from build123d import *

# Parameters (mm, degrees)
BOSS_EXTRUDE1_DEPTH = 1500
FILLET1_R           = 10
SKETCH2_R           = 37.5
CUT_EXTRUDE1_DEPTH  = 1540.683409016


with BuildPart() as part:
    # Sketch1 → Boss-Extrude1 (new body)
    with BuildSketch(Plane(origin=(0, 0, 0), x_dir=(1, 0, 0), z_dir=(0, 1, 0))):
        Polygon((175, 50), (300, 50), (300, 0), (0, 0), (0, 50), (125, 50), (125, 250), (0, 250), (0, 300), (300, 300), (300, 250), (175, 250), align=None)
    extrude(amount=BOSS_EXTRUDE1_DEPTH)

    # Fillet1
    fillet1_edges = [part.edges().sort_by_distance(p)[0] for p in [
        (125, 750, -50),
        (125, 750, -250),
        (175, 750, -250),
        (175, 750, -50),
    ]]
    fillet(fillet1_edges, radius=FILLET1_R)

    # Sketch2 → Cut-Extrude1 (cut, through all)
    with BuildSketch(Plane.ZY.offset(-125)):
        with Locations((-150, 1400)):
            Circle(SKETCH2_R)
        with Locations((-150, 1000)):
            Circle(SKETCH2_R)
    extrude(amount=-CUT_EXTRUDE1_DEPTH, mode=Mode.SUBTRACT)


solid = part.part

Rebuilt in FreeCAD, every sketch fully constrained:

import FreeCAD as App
import Part
import Sketcher
Q = App.Units.Quantity


def edges_at(feature, points):
    """Names of the edges that pass closest to the given points."""
    edges = feature.Shape.Edges
    near = lambda p: min(range(len(edges)), key=lambda i: edges[i].distToShape(Part.Vertex(*p))[0])
    return sorted({f"Edge{near(p) + 1}" for p in points})


def add_polygon(sketch, points):
    """Adds a closed chain of lines whose ends are joined by coincident constraints."""
    first, n = sketch.GeometryCount, len(points)
    for a, b in zip(points, points[1:] + points[:1]):
        sketch.addGeometry(Part.LineSegment(App.Vector(*a, 0), App.Vector(*b, 0)), False)
    for i in range(n):
        sketch.addConstraint(Sketcher.Constraint("Coincident", first + i, 2, first + (i + 1) % n, 1))

doc = App.newDocument("Part")
body = doc.addObject("PartDesign::Body", "Body")

# Sketch on XZ plane
sketch1 = body.newObject("Sketcher::SketchObject", "Sketch")
sketch1.AttachmentSupport = (doc.getObject("XZ_Plane"), [""])
sketch1.MapMode = "FlatFace"
add_polygon(sketch1, [(300, -50), (175, -50), (175, -250), (300, -250), (300, -300), (0, -300), (0, -250), (125, -250), (125, -50), (0, -50), (0, 0), (300, 0)])  # lines 0-11
sketch1.addConstraint(Sketcher.Constraint("Horizontal", 0))
sketch1.addConstraint(Sketcher.Constraint("Vertical", 1))
sketch1.addConstraint(Sketcher.Constraint("Horizontal", 2))
sketch1.addConstraint(Sketcher.Constraint("Vertical", 3))
sketch1.addConstraint(Sketcher.Constraint("Horizontal", 4))
sketch1.addConstraint(Sketcher.Constraint("Vertical", 5))
sketch1.addConstraint(Sketcher.Constraint("Horizontal", 6))
sketch1.addConstraint(Sketcher.Constraint("Vertical", 7))
sketch1.addConstraint(Sketcher.Constraint("Horizontal", 8))
sketch1.addConstraint(Sketcher.Constraint("Vertical", 9))
sketch1.addConstraint(Sketcher.Constraint("Horizontal", 10))
sketch1.addConstraint(Sketcher.Constraint("Vertical", 11))
sketch1.addConstraint(Sketcher.Constraint("Coincident", 9, 2, -1, 1))
sketch1.addConstraint(Sketcher.Constraint("PointOnObject", 4, 2, -2))
sketch1.addConstraint(Sketcher.Constraint("Horizontal", 2, 2, 5, 2))
sketch1.addConstraint(Sketcher.Constraint("Horizontal", 0, 2, 7, 2))
sketch1.addConstraint(Sketcher.Constraint("Vertical", 3, 2, 10, 2))
sketch1.addConstraint(Sketcher.Constraint("Equal", 2, 6))
sketch1.addConstraint(Sketcher.Constraint("Equal", 5, 9))
sketch1.addConstraint(Sketcher.Constraint("DistanceX", 0, 2, 0, 1, Q("125 mm")))
sketch1.addConstraint(Sketcher.Constraint("DistanceX", 4, 2, 4, 1, Q("300 mm")))
sketch1.addConstraint(Sketcher.Constraint("DistanceY", 1, 2, 1, 1, Q("200 mm")))
sketch1.addConstraint(Sketcher.Constraint("DistanceY", 3, 2, 3, 1, Q("50 mm")))
pad1 = body.newObject("PartDesign::Pad", "Pad")
pad1.Profile = sketch1
pad1.Length = 1500
pad1.Reversed = True
doc.recompute()

fillet = body.newObject("PartDesign::Fillet", "Fillet")
fillet.Base = (pad1, edges_at(pad1, [
    (125, 750, -50),
    (125, 750, -250),
    (175, 750, -250),
    (175, 750, -50),
]))
fillet.Radius = 10

# Sketch on YZ plane
sketch2 = body.newObject("Sketcher::SketchObject", "Sketch001")
sketch2.AttachmentSupport = (doc.getObject("YZ_Plane"), [""])
sketch2.MapMode = "FlatFace"
sketch2.AttachmentOffset = App.Placement(App.Vector(0, 0, 125), App.Rotation())
sketch2.addGeometry(Part.Circle(App.Vector(1400, -150, 0), App.Vector(0, 0, 1), 38), False)
sketch2.addGeometry(Part.Circle(App.Vector(1000, -150, 0), App.Vector(0, 0, 1), 38), False)
sketch2.addConstraint(Sketcher.Constraint("Equal", 0, 1))
sketch2.addConstraint(Sketcher.Constraint("Horizontal", 0, 3, 1, 3))
sketch2.addConstraint(Sketcher.Constraint("Diameter", 0, Q("75 mm")))
sketch2.addConstraint(Sketcher.Constraint("DistanceX", -1, 1, 0, 3, Q("1400 mm")))
sketch2.addConstraint(Sketcher.Constraint("DistanceY", 0, 3, -1, 1, Q("150 mm")))
sketch2.addConstraint(Sketcher.Constraint("DistanceX", -1, 1, 1, 3, Q("1000 mm")))
pocket1 = body.newObject("PartDesign::Pocket", "Pocket")
pocket1.Profile = sketch2
pocket1.Type = "ThroughAll"
pocket1.Reversed = True

doc.recompute()
